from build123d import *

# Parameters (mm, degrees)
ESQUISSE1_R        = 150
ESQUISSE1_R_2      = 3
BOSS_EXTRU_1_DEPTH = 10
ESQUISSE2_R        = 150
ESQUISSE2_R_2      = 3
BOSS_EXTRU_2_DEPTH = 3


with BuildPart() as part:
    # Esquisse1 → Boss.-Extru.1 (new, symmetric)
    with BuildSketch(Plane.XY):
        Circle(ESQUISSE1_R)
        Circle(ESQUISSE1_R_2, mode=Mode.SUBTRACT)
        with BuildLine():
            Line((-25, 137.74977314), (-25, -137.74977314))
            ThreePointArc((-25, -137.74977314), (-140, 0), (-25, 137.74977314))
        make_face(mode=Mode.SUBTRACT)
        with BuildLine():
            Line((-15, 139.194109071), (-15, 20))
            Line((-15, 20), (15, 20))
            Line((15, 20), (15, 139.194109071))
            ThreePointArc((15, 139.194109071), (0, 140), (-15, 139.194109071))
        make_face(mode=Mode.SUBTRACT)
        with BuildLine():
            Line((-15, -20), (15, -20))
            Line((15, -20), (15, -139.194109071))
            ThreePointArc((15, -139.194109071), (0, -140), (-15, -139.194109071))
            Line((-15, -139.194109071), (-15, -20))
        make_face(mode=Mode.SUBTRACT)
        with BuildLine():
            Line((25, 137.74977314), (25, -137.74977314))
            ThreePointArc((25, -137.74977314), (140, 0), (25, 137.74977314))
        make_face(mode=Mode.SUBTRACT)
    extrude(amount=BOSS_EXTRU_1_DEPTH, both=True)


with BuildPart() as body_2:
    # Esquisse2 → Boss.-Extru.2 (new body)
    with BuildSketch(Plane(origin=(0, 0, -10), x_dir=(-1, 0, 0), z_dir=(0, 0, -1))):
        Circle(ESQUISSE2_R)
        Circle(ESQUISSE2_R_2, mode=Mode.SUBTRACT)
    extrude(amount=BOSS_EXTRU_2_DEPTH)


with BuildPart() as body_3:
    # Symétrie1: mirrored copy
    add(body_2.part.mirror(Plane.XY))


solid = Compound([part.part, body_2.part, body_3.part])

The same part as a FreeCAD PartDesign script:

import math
import FreeCAD as App
import Part
import Sketcher

V = App.Vector
Q = App.Units.Quantity

doc = App.newDocument("Part")
body = doc.addObject("PartDesign::Body", "Body")

sketch1 = body.newObject("Sketcher::SketchObject", "Sketch")
sketch1.AttachmentSupport = (doc.getObject("XY_Plane"), [""])
sketch1.MapMode = "FlatFace"
sketch1.addGeometry([
    Part.Circle(V(0, 0, 0), V(0, 0, 1), 150),
    Part.LineSegment(V(-15, -139.2, 0), V(-15, -20, 0)),
    Part.LineSegment(V(-15, -20, 0), V(15, -20, 0)),
    Part.LineSegment(V(15, -20, 0), V(15, -139.2, 0)),
    Part.ArcOfCircle(Part.Circle(V(0, 0, 0), V(0, 0, 1), 140), math.radians(-96.15), math.radians(-83.85)),
    Part.ArcOfCircle(Part.Circle(V(0, 0, 0), V(0, 0, 1), 140), math.radians(100), math.radians(260)),
    Part.LineSegment(V(-25, 137.7, 0), V(-25, -137.7, 0)),
    Part.Circle(V(0, 0, 0), V(0, 0, 1), 3),
    Part.LineSegment(V(25, -137.7, 0), V(25, 137.7, 0)),
    Part.ArcOfCircle(Part.Circle(V(0, 0, 0), V(0, 0, 1), 140), math.radians(-80), math.radians(80)),
    Part.LineSegment(V(-15, 20, 0), V(-15, 139.2, 0)),
    Part.ArcOfCircle(Part.Circle(V(0, 0, 0), V(0, 0, 1), 140), math.radians(83.85), math.radians(96.15)),
    Part.LineSegment(V(15, 139.2, 0), V(15, 20, 0)),
    Part.LineSegment(V(15, 20, 0), V(-15, 20, 0)),
], False)
sketch1.addConstraint([
    Sketcher.Constraint("Coincident", 1, 2, 2, 1),
    Sketcher.Constraint("Coincident", 2, 2, 3, 1),
    Sketcher.Constraint("Coincident", 3, 2, 4, 2),
    Sketcher.Constraint("Coincident", 4, 1, 1, 1),
    Sketcher.Constraint("Coincident", 5, 1, 6, 1),
    Sketcher.Constraint("Coincident", 6, 2, 5, 2),
    Sketcher.Constraint("Coincident", 8, 1, 9, 1),
    Sketcher.Constraint("Coincident", 9, 2, 8, 2),
    Sketcher.Constraint("Coincident", 10, 2, 11, 2),
    Sketcher.Constraint("Coincident", 11, 1, 12, 1),
    Sketcher.Constraint("Coincident", 12, 2, 13, 1),
    Sketcher.Constraint("Coincident", 13, 2, 10, 1),
    Sketcher.Constraint("Vertical", 1),
    Sketcher.Constraint("Horizontal", 2),
    Sketcher.Constraint("Vertical", 3),
    Sketcher.Constraint("Vertical", 6),
    Sketcher.Constraint("Vertical", 8),
    Sketcher.Constraint("Vertical", 10),
    Sketcher.Constraint("Vertical", 12),
    Sketcher.Constraint("Horizontal", 13),
    Sketcher.Constraint("Coincident", 0, 3, -1, 1),
    Sketcher.Constraint("Coincident", 4, 3, -1, 1),
    Sketcher.Constraint("Coincident", 5, 3, -1, 1),
    Sketcher.Constraint("Coincident", 7, 3, -1, 1),
    Sketcher.Constraint("Coincident", 9, 3, -1, 1),
    Sketcher.Constraint("Coincident", 11, 3, -1, 1),
    Sketcher.Constraint("Equal", 4, 5),
    Sketcher.Constraint("Equal", 5, 9),
    Sketcher.Constraint("Equal", 9, 11),
    Sketcher.Constraint("Symmetric", 1, 2, 12, 2, -1, 1),
    Sketcher.Constraint("Horizontal", 3, 2, 4, 1),
    Sketcher.Constraint("Horizontal", 6, 2, 8, 1),
    Sketcher.Constraint("Horizontal", 10, 2, 11, 1),
    Sketcher.Constraint("Diameter", 0, Q("300 mm")),
    Sketcher.Constraint("Diameter", 7, Q("6 mm")),
    Sketcher.Constraint("Radius", 4, Q("140 mm")),
    Sketcher.Constraint("DistanceX", 2, 1, 2, 2, Q("30 mm")),
    Sketcher.Constraint("DistanceY", 1, 2, -1, 1, Q("20 mm")),
    Sketcher.Constraint("DistanceX", 5, 1, -1, 1, Q("25 mm")),
])
pad1 = body.newObject("PartDesign::Pad", "Pad")
pad1.Profile = sketch1
pad1.Length = 20
pad1.Midplane = True
body2 = doc.addObject("PartDesign::Body", "Body001")

sketch2 = body2.newObject("Sketcher::SketchObject", "Sketch001")
sketch2.AttachmentSupport = (doc.getObject("XY_Plane001"), [""])
sketch2.MapMode = "FlatFace"
sketch2.AttachmentOffset = App.Placement(V(0, 0, -10), App.Rotation())
sketch2.addGeometry([
    Part.Circle(V(0, 0, 0), V(0, 0, 1), 150),
    Part.Circle(V(0, 0, 0), V(0, 0, 1), 3),
], False)
sketch2.addConstraint([
    Sketcher.Constraint("Coincident", 0, 3, -1, 1),
    Sketcher.Constraint("Coincident", 1, 3, -1, 1),
    Sketcher.Constraint("Diameter", 0, Q("300 mm")),
    Sketcher.Constraint("Diameter", 1, Q("6 mm")),
])
pad2 = body2.newObject("PartDesign::Pad", "Pad001")
pad2.Profile = sketch2
pad2.Length = 3
pad2.Reversed = True
body3 = doc.addObject("PartDesign::Body", "Body002")
doc.recompute()

mirroring = doc.addObject("Part::Mirroring", "Mirroring")
mirroring.Source = body2
mirroring.Base = V(0, 0, 0)
mirroring.Normal = V(0, 0, 1)
body3.BaseFeature = mirroring
doc.recompute()
mirroring.Visibility = False

doc.recompute()
